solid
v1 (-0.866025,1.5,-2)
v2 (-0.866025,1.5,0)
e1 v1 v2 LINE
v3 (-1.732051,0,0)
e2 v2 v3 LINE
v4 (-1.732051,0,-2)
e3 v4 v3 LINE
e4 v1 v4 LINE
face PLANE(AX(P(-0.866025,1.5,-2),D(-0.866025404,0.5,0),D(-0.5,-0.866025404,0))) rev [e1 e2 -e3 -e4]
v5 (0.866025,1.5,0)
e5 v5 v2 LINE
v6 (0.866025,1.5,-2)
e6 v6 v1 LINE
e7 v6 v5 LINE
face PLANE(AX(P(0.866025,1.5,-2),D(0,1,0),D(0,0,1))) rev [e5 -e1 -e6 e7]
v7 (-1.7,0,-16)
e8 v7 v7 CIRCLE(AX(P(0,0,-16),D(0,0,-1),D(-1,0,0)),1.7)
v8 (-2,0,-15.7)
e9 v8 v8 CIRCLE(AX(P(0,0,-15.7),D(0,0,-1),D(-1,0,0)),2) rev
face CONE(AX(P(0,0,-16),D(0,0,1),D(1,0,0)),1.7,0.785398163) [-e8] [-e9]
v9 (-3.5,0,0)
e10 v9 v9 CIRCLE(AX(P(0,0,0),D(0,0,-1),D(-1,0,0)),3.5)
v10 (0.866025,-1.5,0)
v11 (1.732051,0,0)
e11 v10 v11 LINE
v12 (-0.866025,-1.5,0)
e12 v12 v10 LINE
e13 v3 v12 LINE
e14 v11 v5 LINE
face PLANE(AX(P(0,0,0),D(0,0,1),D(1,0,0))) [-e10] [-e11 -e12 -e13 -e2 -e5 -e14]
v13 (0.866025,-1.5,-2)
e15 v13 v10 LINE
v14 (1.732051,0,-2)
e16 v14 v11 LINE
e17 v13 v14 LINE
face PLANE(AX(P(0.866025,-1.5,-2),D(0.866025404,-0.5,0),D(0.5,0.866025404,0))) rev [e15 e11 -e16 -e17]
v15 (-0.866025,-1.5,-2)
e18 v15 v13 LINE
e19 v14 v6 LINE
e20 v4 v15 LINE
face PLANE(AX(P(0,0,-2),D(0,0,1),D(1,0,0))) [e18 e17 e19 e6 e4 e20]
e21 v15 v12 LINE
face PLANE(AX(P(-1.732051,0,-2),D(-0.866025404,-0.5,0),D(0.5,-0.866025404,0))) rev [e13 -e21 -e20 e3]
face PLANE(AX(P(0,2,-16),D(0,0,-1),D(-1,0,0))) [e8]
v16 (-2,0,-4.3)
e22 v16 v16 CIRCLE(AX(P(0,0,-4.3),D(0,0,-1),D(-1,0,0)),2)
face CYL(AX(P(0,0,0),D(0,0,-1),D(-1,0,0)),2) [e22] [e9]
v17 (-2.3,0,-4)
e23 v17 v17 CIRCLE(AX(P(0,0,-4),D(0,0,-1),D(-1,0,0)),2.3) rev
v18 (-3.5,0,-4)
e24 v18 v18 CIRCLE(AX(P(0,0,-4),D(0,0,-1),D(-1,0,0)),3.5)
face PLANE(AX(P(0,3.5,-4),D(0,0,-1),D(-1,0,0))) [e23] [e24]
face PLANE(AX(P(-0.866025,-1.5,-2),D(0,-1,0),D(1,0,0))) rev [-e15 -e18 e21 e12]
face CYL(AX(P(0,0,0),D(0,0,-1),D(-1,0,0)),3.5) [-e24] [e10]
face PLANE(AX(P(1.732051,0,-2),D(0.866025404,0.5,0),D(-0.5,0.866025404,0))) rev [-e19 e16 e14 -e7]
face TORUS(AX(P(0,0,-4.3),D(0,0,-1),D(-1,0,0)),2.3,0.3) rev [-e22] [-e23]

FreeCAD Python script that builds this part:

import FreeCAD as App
import Part
import Sketcher

V = App.Vector
Q = App.Units.Quantity


def edges_at(feature, points):
    """Names of the edges that pass closest to the given points."""
    edges = feature.Shape.Edges
    near = lambda p: min(range(len(edges)), key=lambda i: edges[i].distToShape(Part.Vertex(*p))[0])
    return sorted({f"Edge{near(p) + 1}" for p in points})

doc = App.newDocument("Part")
body = doc.addObject("PartDesign::Body", "Body")

# Sketch on YZ plane
sketch1 = body.newObject("Sketcher::SketchObject", "Sketch")
sketch1.AttachmentSupport = (doc.getObject("YZ_Plane"), [""])
sketch1.MapMode = "FlatFace"
sketch1.addGeometry([
    Part.LineSegment(V(3.5, 0, 0), V(0, 0, 0)),  # 0
    Part.LineSegment(V(0, 0, 0), V(0, -16, 0)),  # 1
    Part.LineSegment(V(0, -16, 0), V(2, -16, 0)),  # 2
    Part.LineSegment(V(2, -16, 0), V(2, -4, 0)),  # 3
    Part.LineSegment(V(2, -4, 0), V(3.5, -4, 0)),  # 4
    Part.LineSegment(V(3.5, -4, 0), V(3.5, 0, 0)),  # 5
], False)
sketch1.addConstraint([
    Sketcher.Constraint("Coincident", 0, 2, 1, 1),
    Sketcher.Constraint("Coincident", 1, 2, 2, 1),
    Sketcher.Constraint("Coincident", 2, 2, 3, 1),
    Sketcher.Constraint("Coincident", 3, 2, 4, 1),
    Sketcher.Constraint("Coincident", 4, 2, 5, 1),
    Sketcher.Constraint("Coincident", 5, 2, 0, 1),
    Sketcher.Constraint("Horizontal", 0),
    Sketcher.Constraint("Vertical", 1),
    Sketcher.Constraint("Horizontal", 2),
    Sketcher.Constraint("Vertical", 3),
    Sketcher.Constraint("Horizontal", 4),
    Sketcher.Constraint("Vertical", 5),
    Sketcher.Constraint("Coincident", 0, 2, -1, 1),
    Sketcher.Constraint("DistanceX", 2, 1, 2, 2, Q("2 mm")),
    Sketcher.Constraint("DistanceY", 1, 2, 1, 1, Q("16 mm")),
    Sketcher.Constraint("DistanceY", 3, 1, 3, 2, Q("12 mm")),
    Sketcher.Constraint("DistanceX", 0, 2, 0, 1, Q("3.5 mm")),
])
revolution = body.newObject("PartDesign::Revolution", "Revolution")
revolution.Profile = sketch1
revolution.ReferenceAxis = (sketch1, ["V_Axis"])
revolution.Angle = 360

# Sketch on XY plane
sketch2 = body.newObject("Sketcher::SketchObject", "Sketch001")
sketch2.AttachmentSupport = (doc.getObject("XY_Plane"), [""])
sketch2.MapMode = "FlatFace"
sketch2.addGeometry([
    Part.LineSegment(V(1.7, 0, 0), V(0.9, 1.5, 0)),  # 0
    Part.LineSegment(V(0.9, 1.5, 0), V(-0.9, 1.5, 0)),  # 1
    Part.LineSegment(V(-0.9, 1.5, 0), V(-1.7, 0, 0)),  # 2
    Part.LineSegment(V(-1.7, 0, 0), V(-0.9, -1.5, 0)),  # 3
    Part.LineSegment(V(-0.9, -1.5, 0), V(0.9, -1.5, 0)),  # 4
    Part.LineSegment(V(0.9, -1.5, 0), V(1.7, 0, 0)),  # 5
], False)
sketch2.addConstraint([
    Sketcher.Constraint("Coincident", 0, 2, 1, 1),
    Sketcher.Constraint("Coincident", 1, 2, 2, 1),
    Sketcher.Constraint("Coincident", 2, 2, 3, 1),
    Sketcher.Constraint("Coincident", 3, 2, 4, 1),
    Sketcher.Constraint("Coincident", 4, 2, 5, 1),
    Sketcher.Constraint("Coincident", 5, 2, 0, 1),
    Sketcher.Constraint("Horizontal", 1),
    Sketcher.Constraint("Horizontal", 4),
    Sketcher.Constraint("Symmetric", 0, 2, 3, 2, -1, 1),
    Sketcher.Constraint("Symmetric", 2, 2, 5, 2, -1, 1),
    Sketcher.Constraint("PointOnObject", 2, 2, -1),
    Sketcher.Constraint("Parallel", 2, 5),
    Sketcher.Constraint("Vertical", 1, 2, 3, 2),
    Sketcher.Constraint("Angle", 0, Q("120 deg")),
    Sketcher.Constraint("DistanceY", 3, 2, 1, 2, Q("3 mm")),
    Sketcher.Constraint("DistanceX", 1, 2, 1, 1, Q("1.732051 mm")),
])
pocket1 = body.newObject("PartDesign::Pocket", "Pocket")
pocket1.Profile = sketch2
pocket1.Length = 2
doc.recompute()

fillet = body.newObject("PartDesign::Fillet", "Fillet")
fillet.Base = (pocket1, edges_at(pocket1, [(0, -2, -4)]))
fillet.Radius = 0.3
doc.recompute()

chamfer = body.newObject("PartDesign::Chamfer", "Chamfer")
chamfer.Base = (fillet, edges_at(fillet, [(0, -2, -16)]))
chamfer.Size = 0.3

doc.recompute()
